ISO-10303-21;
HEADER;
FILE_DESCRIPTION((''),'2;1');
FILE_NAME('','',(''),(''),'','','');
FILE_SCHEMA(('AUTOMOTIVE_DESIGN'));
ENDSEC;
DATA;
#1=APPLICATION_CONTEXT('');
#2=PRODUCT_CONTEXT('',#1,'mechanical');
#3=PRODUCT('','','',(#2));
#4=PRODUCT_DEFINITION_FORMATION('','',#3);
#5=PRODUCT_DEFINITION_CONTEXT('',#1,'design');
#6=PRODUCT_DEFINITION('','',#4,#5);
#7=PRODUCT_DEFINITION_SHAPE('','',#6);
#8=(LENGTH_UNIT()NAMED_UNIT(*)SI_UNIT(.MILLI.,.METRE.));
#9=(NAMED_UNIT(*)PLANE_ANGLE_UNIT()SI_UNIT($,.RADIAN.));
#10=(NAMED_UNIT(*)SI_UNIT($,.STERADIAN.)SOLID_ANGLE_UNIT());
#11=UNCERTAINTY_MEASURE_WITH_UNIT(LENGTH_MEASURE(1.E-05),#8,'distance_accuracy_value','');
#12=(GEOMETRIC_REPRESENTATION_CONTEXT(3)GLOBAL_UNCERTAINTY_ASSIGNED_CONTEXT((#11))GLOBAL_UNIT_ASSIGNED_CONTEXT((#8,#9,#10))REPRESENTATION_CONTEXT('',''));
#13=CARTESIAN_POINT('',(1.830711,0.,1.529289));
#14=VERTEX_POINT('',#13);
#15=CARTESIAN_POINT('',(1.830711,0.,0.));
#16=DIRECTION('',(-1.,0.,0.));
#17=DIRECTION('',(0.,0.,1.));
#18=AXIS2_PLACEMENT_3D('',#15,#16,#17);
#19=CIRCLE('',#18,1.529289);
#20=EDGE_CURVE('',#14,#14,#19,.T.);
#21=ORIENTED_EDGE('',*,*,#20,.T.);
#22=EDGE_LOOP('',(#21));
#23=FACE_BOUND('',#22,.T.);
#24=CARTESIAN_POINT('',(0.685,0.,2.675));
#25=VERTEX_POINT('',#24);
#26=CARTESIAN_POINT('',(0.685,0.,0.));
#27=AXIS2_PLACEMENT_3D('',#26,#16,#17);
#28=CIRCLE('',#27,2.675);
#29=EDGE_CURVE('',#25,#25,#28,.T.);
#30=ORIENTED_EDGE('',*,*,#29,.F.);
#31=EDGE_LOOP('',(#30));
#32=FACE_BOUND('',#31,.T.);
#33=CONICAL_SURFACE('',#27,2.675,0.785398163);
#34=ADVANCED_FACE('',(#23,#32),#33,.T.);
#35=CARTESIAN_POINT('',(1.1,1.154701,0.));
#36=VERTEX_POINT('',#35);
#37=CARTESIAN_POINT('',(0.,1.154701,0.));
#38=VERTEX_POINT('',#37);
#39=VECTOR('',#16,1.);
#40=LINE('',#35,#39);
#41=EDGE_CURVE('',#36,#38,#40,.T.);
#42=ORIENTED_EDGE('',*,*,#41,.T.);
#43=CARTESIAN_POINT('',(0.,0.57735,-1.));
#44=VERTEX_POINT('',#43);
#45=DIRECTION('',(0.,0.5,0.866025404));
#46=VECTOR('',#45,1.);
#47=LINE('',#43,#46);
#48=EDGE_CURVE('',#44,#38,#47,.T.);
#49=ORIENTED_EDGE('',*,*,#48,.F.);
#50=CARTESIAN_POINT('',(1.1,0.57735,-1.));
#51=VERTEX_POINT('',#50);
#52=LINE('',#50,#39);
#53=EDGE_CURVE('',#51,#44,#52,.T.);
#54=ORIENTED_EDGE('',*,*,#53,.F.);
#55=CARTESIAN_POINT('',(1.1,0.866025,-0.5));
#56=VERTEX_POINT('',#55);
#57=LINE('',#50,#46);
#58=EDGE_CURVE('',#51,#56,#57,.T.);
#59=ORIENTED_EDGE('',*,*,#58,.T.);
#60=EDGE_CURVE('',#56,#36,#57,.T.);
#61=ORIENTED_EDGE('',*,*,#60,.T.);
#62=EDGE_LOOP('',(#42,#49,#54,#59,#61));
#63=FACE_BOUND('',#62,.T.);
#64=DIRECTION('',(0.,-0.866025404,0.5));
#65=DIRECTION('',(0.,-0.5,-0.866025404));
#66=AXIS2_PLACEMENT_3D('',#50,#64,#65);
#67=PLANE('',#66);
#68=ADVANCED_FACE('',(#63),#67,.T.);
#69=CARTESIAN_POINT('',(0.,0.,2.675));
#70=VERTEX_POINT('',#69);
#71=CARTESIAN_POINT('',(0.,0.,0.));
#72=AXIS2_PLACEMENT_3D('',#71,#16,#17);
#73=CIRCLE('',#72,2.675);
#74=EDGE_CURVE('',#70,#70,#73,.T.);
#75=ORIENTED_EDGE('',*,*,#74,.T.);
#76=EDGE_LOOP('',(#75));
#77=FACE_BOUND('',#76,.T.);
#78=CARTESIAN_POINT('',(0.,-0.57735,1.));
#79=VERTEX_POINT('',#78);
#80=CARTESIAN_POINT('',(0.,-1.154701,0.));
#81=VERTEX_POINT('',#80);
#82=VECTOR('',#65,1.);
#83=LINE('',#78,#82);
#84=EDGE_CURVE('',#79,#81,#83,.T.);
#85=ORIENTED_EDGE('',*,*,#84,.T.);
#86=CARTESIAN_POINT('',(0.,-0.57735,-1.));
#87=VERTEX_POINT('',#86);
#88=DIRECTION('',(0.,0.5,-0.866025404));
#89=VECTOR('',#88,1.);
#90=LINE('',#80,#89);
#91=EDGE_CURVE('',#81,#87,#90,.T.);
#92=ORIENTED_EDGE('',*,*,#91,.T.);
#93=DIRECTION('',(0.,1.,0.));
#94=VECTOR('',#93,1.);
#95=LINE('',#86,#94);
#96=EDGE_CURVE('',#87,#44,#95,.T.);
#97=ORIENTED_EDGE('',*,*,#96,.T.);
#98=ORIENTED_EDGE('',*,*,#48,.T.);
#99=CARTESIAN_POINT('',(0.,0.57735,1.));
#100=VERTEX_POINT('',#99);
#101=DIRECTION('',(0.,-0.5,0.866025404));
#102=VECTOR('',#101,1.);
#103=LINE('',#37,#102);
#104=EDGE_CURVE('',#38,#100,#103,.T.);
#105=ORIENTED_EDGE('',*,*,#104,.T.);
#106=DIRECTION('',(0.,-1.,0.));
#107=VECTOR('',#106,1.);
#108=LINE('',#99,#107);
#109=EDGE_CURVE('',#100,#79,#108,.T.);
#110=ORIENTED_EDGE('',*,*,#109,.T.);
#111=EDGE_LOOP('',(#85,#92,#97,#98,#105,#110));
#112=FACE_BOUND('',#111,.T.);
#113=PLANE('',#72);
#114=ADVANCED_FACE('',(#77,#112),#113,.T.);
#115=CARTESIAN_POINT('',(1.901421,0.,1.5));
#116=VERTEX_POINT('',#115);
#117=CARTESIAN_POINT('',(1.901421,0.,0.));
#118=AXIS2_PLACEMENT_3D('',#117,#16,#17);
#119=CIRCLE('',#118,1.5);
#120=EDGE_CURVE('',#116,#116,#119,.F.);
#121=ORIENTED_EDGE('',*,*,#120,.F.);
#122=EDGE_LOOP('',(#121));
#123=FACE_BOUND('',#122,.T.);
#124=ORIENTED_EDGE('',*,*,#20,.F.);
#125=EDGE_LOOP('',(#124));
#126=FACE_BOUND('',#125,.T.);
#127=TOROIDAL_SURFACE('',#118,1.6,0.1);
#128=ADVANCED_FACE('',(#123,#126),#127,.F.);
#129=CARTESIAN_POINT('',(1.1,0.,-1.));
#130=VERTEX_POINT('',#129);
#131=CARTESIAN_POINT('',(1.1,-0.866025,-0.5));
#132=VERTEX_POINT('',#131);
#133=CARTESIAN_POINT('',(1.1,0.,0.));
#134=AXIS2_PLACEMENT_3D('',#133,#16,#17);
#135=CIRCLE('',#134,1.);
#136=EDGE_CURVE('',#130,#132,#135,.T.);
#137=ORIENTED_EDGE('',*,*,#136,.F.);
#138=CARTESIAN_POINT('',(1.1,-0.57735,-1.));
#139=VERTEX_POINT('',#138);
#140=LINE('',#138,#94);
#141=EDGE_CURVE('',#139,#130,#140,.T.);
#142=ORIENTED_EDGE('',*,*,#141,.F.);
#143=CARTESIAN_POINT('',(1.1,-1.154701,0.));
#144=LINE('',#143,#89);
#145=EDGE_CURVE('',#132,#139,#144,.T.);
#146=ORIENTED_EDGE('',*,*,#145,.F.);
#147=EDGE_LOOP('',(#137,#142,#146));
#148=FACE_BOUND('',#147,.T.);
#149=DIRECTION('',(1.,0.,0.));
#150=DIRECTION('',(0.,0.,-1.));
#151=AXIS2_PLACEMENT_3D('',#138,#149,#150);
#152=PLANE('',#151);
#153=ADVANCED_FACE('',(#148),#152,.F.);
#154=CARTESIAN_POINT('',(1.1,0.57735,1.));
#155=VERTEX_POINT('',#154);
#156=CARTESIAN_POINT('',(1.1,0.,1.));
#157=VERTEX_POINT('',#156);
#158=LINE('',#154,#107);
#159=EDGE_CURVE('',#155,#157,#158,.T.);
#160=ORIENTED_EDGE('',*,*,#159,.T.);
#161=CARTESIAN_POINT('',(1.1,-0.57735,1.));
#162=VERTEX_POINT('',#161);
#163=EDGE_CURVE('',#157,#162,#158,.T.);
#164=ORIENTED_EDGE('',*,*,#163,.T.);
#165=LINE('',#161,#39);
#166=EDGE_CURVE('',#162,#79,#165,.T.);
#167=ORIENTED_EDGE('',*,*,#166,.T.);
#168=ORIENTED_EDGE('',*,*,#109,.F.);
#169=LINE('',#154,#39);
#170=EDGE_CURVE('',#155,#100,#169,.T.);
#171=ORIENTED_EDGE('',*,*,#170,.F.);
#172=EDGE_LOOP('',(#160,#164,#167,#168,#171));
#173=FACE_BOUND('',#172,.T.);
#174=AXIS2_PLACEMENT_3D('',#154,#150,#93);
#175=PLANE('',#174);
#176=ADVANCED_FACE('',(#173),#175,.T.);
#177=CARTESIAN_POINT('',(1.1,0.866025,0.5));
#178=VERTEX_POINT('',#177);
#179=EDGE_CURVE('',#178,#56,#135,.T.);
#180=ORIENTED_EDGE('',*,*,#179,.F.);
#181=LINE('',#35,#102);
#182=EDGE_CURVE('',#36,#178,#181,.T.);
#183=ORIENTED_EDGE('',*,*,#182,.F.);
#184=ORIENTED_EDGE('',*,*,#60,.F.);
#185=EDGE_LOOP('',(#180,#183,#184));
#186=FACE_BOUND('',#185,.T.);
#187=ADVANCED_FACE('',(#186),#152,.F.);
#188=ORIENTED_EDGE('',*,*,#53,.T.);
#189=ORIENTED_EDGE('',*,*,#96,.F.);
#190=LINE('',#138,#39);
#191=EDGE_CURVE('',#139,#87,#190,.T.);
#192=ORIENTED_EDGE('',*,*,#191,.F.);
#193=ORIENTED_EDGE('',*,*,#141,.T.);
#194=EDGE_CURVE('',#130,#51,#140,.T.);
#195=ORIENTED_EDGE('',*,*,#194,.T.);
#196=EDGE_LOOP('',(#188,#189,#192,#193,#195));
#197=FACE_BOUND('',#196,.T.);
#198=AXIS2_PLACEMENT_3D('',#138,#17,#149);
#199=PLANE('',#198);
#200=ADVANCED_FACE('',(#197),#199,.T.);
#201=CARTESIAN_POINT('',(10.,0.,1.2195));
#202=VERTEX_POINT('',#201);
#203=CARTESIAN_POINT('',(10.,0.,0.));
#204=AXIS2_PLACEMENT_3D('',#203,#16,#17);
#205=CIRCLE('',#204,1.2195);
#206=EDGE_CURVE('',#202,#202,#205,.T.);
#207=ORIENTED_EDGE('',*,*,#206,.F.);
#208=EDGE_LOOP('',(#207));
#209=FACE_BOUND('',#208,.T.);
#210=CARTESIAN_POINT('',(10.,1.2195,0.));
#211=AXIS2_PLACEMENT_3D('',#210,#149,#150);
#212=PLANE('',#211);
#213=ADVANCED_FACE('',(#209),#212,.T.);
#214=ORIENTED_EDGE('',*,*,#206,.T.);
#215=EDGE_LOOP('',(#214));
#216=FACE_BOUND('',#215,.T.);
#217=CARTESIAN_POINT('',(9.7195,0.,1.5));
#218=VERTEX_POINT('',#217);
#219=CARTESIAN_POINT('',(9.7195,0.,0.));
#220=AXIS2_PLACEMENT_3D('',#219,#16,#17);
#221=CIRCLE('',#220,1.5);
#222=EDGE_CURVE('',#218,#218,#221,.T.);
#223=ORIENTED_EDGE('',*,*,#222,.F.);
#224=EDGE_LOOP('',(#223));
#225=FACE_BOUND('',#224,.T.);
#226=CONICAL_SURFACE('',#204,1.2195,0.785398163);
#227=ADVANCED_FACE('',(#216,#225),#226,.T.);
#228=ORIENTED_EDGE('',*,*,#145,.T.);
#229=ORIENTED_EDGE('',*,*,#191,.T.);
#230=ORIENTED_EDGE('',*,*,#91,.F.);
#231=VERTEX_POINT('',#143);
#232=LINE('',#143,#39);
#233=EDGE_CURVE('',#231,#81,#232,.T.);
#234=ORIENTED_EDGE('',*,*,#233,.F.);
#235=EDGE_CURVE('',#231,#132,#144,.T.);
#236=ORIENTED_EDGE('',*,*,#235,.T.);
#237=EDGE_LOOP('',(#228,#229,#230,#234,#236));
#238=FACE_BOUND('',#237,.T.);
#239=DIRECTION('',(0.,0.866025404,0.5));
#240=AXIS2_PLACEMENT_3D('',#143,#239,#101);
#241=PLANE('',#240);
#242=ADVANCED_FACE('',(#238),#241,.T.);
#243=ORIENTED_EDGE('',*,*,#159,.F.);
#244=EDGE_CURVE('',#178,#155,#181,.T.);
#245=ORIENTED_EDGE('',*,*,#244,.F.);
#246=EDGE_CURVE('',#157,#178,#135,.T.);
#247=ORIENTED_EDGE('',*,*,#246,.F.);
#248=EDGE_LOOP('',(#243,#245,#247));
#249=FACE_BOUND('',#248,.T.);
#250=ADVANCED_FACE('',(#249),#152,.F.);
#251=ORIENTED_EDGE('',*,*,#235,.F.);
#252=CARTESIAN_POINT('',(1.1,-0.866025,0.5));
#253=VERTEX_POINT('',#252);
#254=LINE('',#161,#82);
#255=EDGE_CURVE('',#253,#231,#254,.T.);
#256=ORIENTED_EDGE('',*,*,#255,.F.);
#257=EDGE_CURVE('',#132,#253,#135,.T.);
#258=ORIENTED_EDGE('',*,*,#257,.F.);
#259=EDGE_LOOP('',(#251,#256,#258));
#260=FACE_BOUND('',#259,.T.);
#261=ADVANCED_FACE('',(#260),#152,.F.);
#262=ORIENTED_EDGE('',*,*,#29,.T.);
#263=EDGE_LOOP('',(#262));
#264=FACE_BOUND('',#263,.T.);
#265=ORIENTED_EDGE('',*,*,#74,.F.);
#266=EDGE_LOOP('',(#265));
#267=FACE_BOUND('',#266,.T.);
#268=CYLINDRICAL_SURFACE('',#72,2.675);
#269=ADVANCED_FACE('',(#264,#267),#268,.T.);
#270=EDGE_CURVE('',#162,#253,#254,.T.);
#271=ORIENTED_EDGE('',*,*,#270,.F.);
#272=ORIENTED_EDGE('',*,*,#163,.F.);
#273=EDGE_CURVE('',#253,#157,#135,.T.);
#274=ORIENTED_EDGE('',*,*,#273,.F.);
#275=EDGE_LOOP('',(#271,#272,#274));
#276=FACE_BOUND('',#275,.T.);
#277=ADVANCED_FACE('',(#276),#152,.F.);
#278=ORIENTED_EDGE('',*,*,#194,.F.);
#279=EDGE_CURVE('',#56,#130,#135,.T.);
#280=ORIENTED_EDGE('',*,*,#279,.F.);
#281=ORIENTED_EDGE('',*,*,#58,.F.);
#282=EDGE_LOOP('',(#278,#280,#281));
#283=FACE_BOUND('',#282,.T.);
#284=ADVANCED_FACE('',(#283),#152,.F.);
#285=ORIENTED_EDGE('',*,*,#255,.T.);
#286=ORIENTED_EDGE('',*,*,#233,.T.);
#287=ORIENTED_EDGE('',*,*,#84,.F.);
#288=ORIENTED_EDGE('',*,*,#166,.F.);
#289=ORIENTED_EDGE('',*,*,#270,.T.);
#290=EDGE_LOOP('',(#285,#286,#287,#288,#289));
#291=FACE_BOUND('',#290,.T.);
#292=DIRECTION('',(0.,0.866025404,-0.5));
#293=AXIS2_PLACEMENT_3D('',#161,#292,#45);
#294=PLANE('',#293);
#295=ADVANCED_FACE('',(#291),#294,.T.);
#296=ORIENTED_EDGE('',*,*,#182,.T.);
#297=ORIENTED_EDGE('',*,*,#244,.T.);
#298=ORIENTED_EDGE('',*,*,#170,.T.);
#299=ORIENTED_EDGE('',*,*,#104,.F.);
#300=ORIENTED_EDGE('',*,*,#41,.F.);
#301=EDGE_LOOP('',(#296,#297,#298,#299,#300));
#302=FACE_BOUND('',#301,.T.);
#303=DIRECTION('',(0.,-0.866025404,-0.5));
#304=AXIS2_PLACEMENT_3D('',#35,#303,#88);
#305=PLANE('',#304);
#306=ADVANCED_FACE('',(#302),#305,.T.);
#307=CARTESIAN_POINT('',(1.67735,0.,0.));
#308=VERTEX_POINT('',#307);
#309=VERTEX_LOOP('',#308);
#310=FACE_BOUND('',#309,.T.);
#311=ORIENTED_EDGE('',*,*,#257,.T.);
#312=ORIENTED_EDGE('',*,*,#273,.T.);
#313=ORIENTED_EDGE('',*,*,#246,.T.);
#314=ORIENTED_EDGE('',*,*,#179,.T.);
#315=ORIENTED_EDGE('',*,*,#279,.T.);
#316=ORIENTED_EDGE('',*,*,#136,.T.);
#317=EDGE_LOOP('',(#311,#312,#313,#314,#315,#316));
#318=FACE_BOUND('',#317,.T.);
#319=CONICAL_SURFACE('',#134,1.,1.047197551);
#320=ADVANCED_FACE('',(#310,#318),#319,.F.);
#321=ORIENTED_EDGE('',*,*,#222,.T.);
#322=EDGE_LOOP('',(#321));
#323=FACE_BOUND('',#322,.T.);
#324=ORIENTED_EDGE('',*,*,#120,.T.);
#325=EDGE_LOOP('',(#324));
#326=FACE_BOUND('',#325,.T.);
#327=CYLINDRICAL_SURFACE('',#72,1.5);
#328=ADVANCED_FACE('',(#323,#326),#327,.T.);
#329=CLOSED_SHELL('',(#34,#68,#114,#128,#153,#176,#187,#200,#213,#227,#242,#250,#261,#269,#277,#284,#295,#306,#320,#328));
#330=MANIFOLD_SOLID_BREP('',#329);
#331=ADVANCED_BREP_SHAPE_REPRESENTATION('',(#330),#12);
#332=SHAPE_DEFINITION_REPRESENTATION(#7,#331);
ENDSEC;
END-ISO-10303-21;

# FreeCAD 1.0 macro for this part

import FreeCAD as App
import Part
import Sketcher

V = App.Vector
Q = App.Units.Quantity


def edges_at(feature, points):
    """Names of the edges that pass closest to the given points."""
    edges = feature.Shape.Edges
    near = lambda p: min(range(len(edges)), key=lambda i: edges[i].distToShape(Part.Vertex(*p))[0])
    return sorted({f"Edge{near(p) + 1}" for p in points})


def add_polygon(sketch, points):
    """Adds a closed chain of lines whose ends are joined by coincident constraints."""
    first, n = sketch.GeometryCount, len(points)
    for a, b in zip(points, points[1:] + points[:1]):
        sketch.addGeometry(Part.LineSegment(App.Vector(*a, 0), App.Vector(*b, 0)), False)
    for i in range(n):
        sketch.addConstraint(Sketcher.Constraint("Coincident", first + i, 2, first + (i + 1) % n, 1))

doc = App.newDocument("Part")
body = doc.addObject("PartDesign::Body", "Body")

# Sketch on XY plane
sketch1 = body.newObject("Sketcher::SketchObject", "Sketch")
sketch1.AttachmentSupport = (doc.getObject("XY_Plane"), [""])
sketch1.MapMode = "FlatFace"
add_polygon(sketch1, [(0, 2.67), (0, 0), (10, 0), (10, 1.22), (9.72, 1.5), (1.86, 1.5), (0.69, 2.67)])  # lines 0-6
sketch1.addConstraint([
    Sketcher.Constraint("Vertical", 0),
    Sketcher.Constraint("Horizontal", 1),
    Sketcher.Constraint("Vertical", 2),
    Sketcher.Constraint("Horizontal", 4),
    Sketcher.Constraint("Horizontal", 6),
    Sketcher.Constraint("Coincident", 0, 2, -1, 1),
    Sketcher.Constraint("Parallel", 3, 5),
    Sketcher.Constraint("DistanceX", 1, 1, 1, 2, 10.0),
    Sketcher.Constraint("Angle", 3, Q("135 deg")),
    Sketcher.Constraint("DistanceY", -1, 1, 3, 2, 1.5),
    Sketcher.Constraint("DistanceX", 6, 2, 6, 1, 0.685),
    Sketcher.Constraint("DistanceY", 0, 2, 0, 1, 2.675),
    Sketcher.Constraint("DistanceX", 4, 2, 4, 1, 7.8595),
])
revolution = body.newObject("PartDesign::Revolution", "Revolution")
revolution.Profile = sketch1
revolution.ReferenceAxis = (sketch1, ["H_Axis"])
revolution.Angle = 360
doc.recompute()

fillet = body.newObject("PartDesign::Fillet", "Fillet")
fillet.Base = (revolution, edges_at(revolution, [(1.86, -1.5, 0)]))
fillet.Radius = 0.1

# Sketch on XY plane
sketch2 = body.newObject("Sketcher::SketchObject", "Sketch001")
sketch2.AttachmentSupport = (doc.getObject("XY_Plane"), [""])
sketch2.MapMode = "FlatFace"
add_polygon(sketch2, [(1.1, 1), (0, 1), (0, 0), (1.7, 0)])  # lines 0-3
sketch2.addConstraint([
    Sketcher.Constraint("Horizontal", 0),
    Sketcher.Constraint("Vertical", 1),
    Sketcher.Constraint("Horizontal", 2),
    Sketcher.Constraint("Coincident", 1, 2, -1, 1),
    Sketcher.Constraint("DistanceY", 1, 2, 1, 1, 1.0),
    Sketcher.Constraint("Angle", 3, Q("120 deg")),
    Sketcher.Constraint("DistanceX", 0, 2, 0, 1, 1.1),
])
groove = body.newObject("PartDesign::Groove", "Groove")
groove.Profile = sketch2
groove.ReferenceAxis = (sketch2, ["H_Axis"])
groove.Angle = 360

# Sketch on YZ plane
sketch3 = body.newObject("Sketcher::SketchObject", "Sketch002")
sketch3.AttachmentSupport = (doc.getObject("YZ_Plane"), [""])
sketch3.MapMode = "FlatFace"
add_polygon(sketch3, [(0.6, -1), (-0.6, -1), (-1.2, 0), (-0.6, 1), (0.6, 1), (1.2, 0)])  # lines 0-5
sketch3.addConstraint([
    Sketcher.Constraint("Horizontal", 0),
    Sketcher.Constraint("Horizontal", 3),
    Sketcher.Constraint("Symmetric", 0, 2, 3, 2, -1, 1),
    Sketcher.Constraint("Symmetric", 1, 2, 4, 2, -1, 1),
    Sketcher.Constraint("PointOnObject", 1, 2, -1),
    Sketcher.Constraint("Parallel", 2, 5),
    Sketcher.Constraint("Vertical", 0, 2, 2, 2),
    Sketcher.Constraint("Angle", 1, Q("120 deg")),
    Sketcher.Constraint("DistanceY", 0, 2, -1, 1, 1.0),
    Sketcher.Constraint("DistanceX", 0, 2, 0, 1, 1.154701),
])
pocket1 = body.newObject("PartDesign::Pocket", "Pocket")
pocket1.Profile = sketch3
pocket1.Length = 1.1
pocket1.Reversed = True

doc.recompute()
